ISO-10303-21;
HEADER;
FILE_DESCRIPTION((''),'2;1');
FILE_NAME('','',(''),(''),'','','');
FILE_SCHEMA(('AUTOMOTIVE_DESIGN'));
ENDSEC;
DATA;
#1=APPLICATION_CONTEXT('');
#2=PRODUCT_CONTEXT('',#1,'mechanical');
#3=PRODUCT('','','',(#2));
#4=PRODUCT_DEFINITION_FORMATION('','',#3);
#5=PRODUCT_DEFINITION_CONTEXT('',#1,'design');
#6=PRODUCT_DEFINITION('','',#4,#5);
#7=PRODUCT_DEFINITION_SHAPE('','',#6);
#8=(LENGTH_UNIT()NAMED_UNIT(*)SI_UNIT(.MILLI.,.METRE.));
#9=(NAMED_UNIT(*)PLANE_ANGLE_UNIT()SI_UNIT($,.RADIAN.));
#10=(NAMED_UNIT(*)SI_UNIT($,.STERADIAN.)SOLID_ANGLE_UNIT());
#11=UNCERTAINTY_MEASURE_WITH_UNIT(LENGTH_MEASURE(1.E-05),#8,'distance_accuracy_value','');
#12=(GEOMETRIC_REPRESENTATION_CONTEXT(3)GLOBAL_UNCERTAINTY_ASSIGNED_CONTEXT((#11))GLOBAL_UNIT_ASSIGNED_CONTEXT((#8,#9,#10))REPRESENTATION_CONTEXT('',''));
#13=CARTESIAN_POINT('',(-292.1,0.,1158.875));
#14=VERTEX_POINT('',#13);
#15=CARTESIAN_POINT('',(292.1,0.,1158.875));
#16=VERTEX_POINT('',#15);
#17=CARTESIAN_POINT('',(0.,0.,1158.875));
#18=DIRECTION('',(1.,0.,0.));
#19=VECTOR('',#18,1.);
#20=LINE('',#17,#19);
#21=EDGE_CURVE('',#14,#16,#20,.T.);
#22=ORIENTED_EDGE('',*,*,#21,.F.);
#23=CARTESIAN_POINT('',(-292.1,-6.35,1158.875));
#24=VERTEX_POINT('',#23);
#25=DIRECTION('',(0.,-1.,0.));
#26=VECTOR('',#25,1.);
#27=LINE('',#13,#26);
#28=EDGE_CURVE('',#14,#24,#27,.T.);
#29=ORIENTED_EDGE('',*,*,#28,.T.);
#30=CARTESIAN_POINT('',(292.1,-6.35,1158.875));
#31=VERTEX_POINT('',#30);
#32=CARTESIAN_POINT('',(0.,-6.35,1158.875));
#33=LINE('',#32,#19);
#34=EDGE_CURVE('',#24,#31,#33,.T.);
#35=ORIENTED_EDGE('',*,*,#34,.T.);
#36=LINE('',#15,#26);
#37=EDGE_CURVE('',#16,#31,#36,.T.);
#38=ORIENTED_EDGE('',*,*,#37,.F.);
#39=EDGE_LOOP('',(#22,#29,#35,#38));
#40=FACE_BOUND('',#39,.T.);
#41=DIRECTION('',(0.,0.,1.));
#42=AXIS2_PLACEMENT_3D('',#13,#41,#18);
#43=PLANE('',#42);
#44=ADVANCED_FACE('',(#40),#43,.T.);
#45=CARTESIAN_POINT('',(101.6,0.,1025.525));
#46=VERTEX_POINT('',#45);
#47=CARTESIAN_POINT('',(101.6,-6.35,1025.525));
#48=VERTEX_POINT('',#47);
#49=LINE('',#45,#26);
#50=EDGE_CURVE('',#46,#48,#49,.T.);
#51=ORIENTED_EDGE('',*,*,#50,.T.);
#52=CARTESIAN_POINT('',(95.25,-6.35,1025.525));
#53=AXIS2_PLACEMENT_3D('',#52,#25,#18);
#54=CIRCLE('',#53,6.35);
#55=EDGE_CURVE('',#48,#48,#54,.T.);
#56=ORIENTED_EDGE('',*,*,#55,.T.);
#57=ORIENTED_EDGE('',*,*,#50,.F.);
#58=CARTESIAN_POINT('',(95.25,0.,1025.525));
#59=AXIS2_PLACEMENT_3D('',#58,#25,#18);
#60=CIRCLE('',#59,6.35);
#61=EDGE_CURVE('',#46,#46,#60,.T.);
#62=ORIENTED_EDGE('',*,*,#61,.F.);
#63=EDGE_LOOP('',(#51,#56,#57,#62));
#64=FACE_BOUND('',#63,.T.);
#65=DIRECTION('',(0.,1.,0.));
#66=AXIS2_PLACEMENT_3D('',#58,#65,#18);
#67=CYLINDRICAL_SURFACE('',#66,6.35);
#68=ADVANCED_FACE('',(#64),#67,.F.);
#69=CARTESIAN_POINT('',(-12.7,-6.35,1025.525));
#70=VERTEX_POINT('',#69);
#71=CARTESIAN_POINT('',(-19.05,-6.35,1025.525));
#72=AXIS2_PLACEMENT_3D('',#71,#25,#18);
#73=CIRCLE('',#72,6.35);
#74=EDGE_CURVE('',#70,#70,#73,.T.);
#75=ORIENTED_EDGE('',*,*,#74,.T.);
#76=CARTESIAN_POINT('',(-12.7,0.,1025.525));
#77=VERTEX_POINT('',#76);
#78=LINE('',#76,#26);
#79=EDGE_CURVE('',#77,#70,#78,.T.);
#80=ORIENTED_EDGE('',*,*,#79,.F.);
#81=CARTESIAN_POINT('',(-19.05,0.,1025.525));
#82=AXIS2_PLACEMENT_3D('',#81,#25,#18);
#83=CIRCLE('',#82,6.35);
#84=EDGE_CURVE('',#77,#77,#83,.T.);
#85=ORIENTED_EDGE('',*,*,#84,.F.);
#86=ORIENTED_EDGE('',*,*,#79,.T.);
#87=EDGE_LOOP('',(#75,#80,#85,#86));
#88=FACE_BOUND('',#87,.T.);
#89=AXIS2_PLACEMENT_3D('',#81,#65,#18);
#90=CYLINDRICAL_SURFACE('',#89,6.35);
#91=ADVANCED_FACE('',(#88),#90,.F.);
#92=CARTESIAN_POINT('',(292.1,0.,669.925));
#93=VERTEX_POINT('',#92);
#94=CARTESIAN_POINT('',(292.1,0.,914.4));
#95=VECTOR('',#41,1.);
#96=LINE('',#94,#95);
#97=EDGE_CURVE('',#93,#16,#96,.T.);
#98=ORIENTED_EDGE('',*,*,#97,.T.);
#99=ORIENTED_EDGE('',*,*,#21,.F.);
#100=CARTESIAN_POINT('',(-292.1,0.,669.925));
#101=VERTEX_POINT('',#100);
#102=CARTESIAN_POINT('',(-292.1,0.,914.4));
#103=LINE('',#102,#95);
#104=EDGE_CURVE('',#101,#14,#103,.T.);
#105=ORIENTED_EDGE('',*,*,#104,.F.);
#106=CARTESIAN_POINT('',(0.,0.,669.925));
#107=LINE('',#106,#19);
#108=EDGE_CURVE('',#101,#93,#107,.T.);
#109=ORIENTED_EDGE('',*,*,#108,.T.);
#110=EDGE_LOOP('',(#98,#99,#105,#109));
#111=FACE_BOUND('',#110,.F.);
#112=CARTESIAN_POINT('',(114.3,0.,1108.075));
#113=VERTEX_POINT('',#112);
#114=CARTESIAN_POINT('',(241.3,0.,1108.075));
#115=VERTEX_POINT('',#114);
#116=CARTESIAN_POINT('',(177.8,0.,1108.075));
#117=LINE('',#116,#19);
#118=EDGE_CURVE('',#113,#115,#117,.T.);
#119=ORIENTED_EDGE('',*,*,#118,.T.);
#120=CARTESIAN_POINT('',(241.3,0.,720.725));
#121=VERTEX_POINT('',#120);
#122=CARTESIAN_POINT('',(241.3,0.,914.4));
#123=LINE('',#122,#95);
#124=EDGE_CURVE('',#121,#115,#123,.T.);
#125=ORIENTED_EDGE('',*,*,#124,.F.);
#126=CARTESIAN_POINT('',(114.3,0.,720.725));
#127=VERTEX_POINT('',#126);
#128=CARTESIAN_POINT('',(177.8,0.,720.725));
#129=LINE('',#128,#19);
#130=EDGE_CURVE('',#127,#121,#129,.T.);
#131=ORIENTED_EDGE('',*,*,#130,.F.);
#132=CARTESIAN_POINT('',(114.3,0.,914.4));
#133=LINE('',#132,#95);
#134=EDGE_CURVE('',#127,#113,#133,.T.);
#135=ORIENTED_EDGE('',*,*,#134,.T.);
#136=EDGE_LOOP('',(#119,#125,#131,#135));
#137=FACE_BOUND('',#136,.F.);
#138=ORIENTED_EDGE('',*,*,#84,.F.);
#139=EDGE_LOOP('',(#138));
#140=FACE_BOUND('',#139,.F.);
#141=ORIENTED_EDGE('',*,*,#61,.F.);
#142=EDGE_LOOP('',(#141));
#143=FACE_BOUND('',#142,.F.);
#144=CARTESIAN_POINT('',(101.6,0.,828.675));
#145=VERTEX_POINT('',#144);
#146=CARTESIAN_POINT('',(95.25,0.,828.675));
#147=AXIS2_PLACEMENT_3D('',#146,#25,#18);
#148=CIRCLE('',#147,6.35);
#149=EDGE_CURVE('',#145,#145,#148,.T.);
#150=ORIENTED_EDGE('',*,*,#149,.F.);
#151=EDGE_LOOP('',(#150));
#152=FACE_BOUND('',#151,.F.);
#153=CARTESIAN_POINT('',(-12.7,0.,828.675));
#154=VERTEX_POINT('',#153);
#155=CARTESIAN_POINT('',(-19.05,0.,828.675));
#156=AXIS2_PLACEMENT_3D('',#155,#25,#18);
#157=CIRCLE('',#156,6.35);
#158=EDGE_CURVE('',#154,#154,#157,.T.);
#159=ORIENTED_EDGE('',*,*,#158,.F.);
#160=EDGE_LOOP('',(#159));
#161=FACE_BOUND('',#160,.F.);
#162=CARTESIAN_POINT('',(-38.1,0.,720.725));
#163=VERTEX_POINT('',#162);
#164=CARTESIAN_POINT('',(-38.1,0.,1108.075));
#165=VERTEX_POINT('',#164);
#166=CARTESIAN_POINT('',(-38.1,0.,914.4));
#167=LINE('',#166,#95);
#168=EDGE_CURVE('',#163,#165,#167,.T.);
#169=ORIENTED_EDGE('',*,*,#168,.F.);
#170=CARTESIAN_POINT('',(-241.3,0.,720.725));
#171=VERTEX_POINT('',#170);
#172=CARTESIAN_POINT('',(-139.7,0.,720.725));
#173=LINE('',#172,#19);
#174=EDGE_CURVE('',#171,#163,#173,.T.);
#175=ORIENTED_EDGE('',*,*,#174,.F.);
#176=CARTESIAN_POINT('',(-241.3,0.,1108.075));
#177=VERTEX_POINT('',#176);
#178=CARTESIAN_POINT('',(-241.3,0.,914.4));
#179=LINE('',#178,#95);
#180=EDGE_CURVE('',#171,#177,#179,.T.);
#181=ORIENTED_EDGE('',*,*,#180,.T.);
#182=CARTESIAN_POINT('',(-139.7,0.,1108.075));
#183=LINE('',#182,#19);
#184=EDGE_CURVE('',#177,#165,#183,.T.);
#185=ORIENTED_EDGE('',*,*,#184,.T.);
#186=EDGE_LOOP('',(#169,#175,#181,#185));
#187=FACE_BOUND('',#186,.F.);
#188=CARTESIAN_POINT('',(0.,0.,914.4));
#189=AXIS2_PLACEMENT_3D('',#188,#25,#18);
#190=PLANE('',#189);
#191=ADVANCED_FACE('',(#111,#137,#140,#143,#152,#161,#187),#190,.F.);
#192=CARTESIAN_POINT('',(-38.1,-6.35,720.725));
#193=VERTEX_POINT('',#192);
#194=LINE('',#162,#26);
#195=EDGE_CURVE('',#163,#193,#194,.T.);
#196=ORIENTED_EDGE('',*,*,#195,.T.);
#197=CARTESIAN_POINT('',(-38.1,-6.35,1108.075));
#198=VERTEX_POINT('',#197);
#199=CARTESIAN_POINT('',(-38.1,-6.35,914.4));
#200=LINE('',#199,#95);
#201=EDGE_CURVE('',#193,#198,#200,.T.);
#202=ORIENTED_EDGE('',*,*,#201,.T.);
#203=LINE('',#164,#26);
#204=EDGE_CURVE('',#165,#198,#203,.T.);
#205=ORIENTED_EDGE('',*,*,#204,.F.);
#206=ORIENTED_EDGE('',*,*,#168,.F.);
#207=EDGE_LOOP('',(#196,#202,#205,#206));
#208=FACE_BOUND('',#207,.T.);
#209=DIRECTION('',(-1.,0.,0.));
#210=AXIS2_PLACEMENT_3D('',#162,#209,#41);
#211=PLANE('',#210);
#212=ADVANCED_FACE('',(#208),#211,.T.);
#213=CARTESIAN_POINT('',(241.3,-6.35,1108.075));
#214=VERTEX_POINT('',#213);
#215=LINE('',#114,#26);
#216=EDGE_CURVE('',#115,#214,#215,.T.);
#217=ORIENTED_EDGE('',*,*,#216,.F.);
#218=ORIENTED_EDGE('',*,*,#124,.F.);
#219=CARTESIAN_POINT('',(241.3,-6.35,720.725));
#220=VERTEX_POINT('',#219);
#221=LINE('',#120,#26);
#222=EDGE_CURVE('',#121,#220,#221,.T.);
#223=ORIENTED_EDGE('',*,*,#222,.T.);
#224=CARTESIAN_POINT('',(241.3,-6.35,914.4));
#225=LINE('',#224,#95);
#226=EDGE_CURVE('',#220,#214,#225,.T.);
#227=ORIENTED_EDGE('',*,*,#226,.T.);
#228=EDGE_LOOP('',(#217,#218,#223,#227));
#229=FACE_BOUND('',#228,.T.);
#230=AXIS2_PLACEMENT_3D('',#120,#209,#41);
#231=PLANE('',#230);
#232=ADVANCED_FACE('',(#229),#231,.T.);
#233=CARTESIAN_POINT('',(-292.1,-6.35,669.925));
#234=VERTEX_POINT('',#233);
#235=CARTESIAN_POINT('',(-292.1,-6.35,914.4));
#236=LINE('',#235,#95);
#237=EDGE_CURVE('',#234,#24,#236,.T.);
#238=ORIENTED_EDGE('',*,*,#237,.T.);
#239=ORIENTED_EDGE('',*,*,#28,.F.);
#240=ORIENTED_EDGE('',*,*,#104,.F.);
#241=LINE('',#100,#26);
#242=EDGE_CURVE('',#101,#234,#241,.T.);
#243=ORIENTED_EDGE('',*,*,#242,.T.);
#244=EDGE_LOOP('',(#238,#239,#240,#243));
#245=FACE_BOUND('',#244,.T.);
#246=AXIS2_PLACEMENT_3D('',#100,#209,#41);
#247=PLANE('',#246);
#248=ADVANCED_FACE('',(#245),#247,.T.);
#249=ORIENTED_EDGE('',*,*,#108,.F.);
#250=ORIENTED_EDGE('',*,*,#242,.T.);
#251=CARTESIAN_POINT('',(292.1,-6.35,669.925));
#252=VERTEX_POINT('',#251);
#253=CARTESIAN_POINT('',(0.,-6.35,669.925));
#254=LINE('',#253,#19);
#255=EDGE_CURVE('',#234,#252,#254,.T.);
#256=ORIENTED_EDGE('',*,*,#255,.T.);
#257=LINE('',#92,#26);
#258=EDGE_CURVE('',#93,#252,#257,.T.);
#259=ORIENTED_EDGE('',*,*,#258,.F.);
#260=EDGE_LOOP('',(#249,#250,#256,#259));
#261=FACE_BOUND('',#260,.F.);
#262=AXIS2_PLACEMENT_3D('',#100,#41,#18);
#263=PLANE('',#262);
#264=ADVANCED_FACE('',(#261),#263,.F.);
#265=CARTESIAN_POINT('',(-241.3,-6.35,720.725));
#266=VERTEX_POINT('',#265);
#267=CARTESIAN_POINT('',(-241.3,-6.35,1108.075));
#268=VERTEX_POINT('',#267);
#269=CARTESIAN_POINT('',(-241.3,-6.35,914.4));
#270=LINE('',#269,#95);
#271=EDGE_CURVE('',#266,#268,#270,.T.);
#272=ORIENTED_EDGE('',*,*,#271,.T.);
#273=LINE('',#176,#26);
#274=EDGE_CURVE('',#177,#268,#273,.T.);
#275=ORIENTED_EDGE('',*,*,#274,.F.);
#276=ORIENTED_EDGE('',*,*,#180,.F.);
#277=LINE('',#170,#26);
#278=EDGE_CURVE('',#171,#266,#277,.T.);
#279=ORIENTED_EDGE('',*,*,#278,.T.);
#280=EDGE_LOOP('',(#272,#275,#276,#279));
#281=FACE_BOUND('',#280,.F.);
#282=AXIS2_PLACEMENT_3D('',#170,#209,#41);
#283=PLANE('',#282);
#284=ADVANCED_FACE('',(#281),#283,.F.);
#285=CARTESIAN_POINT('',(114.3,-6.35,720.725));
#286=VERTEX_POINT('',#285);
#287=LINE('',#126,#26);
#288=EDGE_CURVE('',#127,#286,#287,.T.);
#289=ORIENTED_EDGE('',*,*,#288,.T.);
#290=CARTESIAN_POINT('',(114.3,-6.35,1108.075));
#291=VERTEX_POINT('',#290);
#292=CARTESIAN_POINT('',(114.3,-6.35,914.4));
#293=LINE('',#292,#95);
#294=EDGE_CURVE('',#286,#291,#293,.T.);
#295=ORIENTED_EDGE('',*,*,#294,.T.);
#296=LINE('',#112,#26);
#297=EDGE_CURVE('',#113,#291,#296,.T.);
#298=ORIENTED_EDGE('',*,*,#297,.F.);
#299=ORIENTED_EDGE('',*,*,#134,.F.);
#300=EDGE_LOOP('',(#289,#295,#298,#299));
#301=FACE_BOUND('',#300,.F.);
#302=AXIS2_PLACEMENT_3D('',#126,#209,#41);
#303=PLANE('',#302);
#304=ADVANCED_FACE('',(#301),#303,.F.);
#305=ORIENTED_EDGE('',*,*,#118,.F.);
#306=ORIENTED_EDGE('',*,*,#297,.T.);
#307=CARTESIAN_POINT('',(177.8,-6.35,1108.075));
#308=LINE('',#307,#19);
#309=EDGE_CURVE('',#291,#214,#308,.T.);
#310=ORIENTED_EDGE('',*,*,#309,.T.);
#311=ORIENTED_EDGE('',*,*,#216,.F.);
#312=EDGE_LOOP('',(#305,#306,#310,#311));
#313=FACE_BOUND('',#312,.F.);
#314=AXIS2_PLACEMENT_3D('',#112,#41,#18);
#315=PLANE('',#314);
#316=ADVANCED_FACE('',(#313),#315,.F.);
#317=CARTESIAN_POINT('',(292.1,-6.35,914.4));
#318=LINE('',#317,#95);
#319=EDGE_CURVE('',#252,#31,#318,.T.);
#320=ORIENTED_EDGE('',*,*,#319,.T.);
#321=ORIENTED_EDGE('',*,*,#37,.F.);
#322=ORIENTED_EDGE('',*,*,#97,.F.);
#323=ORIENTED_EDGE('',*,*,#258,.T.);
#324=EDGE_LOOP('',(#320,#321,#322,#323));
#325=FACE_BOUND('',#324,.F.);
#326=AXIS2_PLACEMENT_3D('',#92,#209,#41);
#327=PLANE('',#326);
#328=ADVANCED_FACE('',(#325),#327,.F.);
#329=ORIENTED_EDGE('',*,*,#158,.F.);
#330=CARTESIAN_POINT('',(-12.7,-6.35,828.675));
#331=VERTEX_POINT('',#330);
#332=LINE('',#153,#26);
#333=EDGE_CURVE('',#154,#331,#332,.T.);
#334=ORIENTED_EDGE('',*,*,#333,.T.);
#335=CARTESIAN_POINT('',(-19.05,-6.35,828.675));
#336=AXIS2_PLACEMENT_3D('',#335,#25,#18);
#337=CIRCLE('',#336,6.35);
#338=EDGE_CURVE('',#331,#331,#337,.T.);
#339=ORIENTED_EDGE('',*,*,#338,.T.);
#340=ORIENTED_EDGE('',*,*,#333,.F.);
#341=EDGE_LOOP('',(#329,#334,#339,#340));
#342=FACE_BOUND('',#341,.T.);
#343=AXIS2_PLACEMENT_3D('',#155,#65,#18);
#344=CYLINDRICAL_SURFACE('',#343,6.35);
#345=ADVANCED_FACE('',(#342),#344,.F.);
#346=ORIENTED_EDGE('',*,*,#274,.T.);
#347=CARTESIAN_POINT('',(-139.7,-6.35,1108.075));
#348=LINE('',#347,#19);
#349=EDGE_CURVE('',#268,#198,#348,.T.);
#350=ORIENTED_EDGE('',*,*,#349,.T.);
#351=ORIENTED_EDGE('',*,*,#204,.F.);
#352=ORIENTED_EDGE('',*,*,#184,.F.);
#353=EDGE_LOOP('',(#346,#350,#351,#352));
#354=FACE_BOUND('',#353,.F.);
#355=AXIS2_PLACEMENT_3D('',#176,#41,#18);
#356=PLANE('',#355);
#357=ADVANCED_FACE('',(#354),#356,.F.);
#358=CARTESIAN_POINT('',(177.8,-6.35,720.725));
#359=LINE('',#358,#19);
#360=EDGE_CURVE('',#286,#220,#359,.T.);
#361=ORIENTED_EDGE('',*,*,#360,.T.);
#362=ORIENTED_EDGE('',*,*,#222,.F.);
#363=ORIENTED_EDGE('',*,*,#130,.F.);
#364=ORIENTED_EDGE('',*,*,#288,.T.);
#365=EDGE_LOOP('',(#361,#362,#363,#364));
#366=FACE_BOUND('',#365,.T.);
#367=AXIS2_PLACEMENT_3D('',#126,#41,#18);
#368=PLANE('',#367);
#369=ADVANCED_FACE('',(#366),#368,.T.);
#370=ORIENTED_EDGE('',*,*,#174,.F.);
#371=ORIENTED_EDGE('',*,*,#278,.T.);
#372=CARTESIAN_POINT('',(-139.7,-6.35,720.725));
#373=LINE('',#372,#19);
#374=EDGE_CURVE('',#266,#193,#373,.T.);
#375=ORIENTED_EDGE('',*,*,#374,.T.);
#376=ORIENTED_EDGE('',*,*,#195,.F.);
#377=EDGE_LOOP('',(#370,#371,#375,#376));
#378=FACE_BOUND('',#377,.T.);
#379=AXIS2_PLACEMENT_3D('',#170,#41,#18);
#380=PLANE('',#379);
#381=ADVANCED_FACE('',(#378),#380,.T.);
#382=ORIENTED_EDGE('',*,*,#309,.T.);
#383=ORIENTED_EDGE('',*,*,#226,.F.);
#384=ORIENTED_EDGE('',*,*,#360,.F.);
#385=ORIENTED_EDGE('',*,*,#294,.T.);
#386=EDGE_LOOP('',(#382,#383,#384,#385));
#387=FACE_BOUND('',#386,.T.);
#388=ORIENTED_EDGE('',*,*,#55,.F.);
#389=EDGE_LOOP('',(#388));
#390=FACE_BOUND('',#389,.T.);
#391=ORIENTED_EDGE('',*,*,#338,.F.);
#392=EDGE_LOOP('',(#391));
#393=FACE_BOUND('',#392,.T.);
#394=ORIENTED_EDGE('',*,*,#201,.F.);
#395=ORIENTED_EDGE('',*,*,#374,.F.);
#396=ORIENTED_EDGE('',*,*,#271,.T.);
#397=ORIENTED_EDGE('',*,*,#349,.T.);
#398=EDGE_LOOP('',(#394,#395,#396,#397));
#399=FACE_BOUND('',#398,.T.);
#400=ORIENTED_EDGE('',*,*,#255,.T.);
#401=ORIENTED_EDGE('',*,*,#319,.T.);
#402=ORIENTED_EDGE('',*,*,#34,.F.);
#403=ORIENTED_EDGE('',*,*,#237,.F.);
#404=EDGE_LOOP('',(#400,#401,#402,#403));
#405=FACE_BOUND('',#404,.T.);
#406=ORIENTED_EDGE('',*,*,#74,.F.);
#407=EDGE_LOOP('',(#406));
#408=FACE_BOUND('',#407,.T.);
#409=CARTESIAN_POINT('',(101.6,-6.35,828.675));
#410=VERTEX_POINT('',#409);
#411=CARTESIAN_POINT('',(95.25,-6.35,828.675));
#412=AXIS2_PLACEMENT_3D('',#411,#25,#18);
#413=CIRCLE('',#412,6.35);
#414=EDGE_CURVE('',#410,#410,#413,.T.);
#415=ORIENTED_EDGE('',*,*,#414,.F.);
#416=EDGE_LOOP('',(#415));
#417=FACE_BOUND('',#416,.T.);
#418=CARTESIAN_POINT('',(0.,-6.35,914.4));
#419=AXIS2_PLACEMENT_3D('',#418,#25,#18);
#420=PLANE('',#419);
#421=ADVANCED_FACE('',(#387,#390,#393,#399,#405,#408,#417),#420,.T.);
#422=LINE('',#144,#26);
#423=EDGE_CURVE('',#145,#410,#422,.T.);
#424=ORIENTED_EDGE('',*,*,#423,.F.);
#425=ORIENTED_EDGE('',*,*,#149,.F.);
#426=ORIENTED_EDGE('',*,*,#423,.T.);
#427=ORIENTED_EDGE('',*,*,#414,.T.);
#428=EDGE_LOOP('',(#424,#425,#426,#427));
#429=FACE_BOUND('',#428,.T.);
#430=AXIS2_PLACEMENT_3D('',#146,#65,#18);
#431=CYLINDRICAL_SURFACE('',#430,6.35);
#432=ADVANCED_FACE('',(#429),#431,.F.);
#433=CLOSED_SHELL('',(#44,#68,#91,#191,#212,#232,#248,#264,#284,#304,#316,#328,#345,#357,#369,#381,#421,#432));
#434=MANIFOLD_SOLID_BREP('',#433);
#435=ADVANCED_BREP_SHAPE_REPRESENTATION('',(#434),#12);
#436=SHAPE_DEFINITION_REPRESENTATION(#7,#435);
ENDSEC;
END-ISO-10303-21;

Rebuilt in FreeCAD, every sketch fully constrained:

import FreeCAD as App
import Part
import Sketcher

V = App.Vector
Q = App.Units.Quantity


def add_polygon(sketch, points):
    """Adds a closed chain of lines whose ends are joined by coincident constraints."""
    first, n = sketch.GeometryCount, len(points)
    for a, b in zip(points, points[1:] + points[:1]):
        sketch.addGeometry(Part.LineSegment(App.Vector(*a, 0), App.Vector(*b, 0)), False)
    for i in range(n):
        sketch.addConstraint(Sketcher.Constraint("Coincident", first + i, 2, first + (i + 1) % n, 1))

doc = App.newDocument("Part")
body = doc.addObject("PartDesign::Body", "Body")

sketch1 = body.newObject("Sketcher::SketchObject", "Sketch")
sketch1.AttachmentSupport = (doc.getObject("XZ_Plane"), [""])
sketch1.MapMode = "FlatFace"
add_polygon(sketch1, [(-292, 1159), (-292, 670), (292, 670), (292, 1159)])
sketch1.addGeometry(Part.Circle(V(-19, 829, 0), V(0, 0, 1), 6), False)
sketch1.addGeometry(Part.Circle(V(95, 829, 0), V(0, 0, 1), 6), False)
add_polygon(sketch1, [(-38, 721), (-241, 721), (-241, 1108), (-38, 1108)])
sketch1.addGeometry(Part.Circle(V(-19, 1026, 0), V(0, 0, 1), 6), False)
add_polygon(sketch1, [(241, 721), (114, 721), (114, 1108), (241, 1108)])
sketch1.addGeometry(Part.Circle(V(95, 1026, 0), V(0, 0, 1), 6), False)
sketch1.addConstraint(Sketcher.Constraint("Vertical", 0))
sketch1.addConstraint(Sketcher.Constraint("Horizontal", 1))
sketch1.addConstraint(Sketcher.Constraint("Vertical", 2))
sketch1.addConstraint(Sketcher.Constraint("Horizontal", 3))
sketch1.addConstraint(Sketcher.Constraint("Horizontal", 6))
sketch1.addConstraint(Sketcher.Constraint("Vertical", 7))
sketch1.addConstraint(Sketcher.Constraint("Horizontal", 8))
sketch1.addConstraint(Sketcher.Constraint("Vertical", 9))
sketch1.addConstraint(Sketcher.Constraint("Horizontal", 11))
sketch1.addConstraint(Sketcher.Constraint("Vertical", 12))
sketch1.addConstraint(Sketcher.Constraint("Horizontal", 13))
sketch1.addConstraint(Sketcher.Constraint("Vertical", 14))
sketch1.addConstraint(Sketcher.Constraint("Equal", 4, 5))
sketch1.addConstraint(Sketcher.Constraint("Equal", 5, 10))
sketch1.addConstraint(Sketcher.Constraint("Equal", 10, 15))
sketch1.addConstraint(Sketcher.Constraint("Symmetric", 7, 2, 13, 2, -2))
sketch1.addConstraint(Sketcher.Constraint("Horizontal", 4, 3, 5, 3))
sketch1.addConstraint(Sketcher.Constraint("Horizontal", 10, 3, 15, 3))
sketch1.addConstraint(Sketcher.Constraint("Horizontal", 9, 2, 11, 2))
sketch1.addConstraint(Sketcher.Constraint("Vertical", 4, 3, 10, 3))
sketch1.addConstraint(Sketcher.Constraint("Vertical", 5, 3, 15, 3))
sketch1.addConstraint(Sketcher.Constraint("Diameter", 4, Q("0.5 in")))
sketch1.addConstraint(Sketcher.Constraint("DistanceX", 1, 1, 1, 2, Q("23 in")))
sketch1.addConstraint(Sketcher.Constraint("DistanceX", 6, 2, 6, 1, Q("8 in")))
sketch1.addConstraint(Sketcher.Constraint("DistanceX", 11, 2, 11, 1, Q("5 in")))
sketch1.addConstraint(Sketcher.Constraint("DistanceY", 0, 2, 10, 3, Q("14 in")))
sketch1.addConstraint(Sketcher.Constraint("DistanceY", 5, 3, 2, 2, Q("13 in")))
sketch1.addConstraint(Sketcher.Constraint("DistanceX", 0, 2, 6, 2, Q("2 in")))
sketch1.addConstraint(Sketcher.Constraint("DistanceY", 0, 2, 6, 2, Q("2 in")))
sketch1.addConstraint(Sketcher.Constraint("DistanceY", 7, 2, 3, 2, Q("2 in")))
sketch1.addConstraint(Sketcher.Constraint("DistanceX", 9, 2, 11, 2, Q("6 in")))
sketch1.addConstraint(Sketcher.Constraint("DistanceY", 0, 2, 0, 1, Q("19.25 in")))
sketch1.addConstraint(Sketcher.Constraint("DistanceX", 4, 3, 5, 3, Q("4.5 in")))
sketch1.addConstraint(Sketcher.Constraint("DistanceX", 4, 3, -1, 1, Q("0.75 in")))
sketch1.addConstraint(Sketcher.Constraint("DistanceY", -1, 1, 4, 3, Q("32.625 in")))
pad1 = body.newObject("PartDesign::Pad", "Pad")
pad1.Profile = sketch1
pad1.Length = Q("0.25 in")

doc.recompute()
